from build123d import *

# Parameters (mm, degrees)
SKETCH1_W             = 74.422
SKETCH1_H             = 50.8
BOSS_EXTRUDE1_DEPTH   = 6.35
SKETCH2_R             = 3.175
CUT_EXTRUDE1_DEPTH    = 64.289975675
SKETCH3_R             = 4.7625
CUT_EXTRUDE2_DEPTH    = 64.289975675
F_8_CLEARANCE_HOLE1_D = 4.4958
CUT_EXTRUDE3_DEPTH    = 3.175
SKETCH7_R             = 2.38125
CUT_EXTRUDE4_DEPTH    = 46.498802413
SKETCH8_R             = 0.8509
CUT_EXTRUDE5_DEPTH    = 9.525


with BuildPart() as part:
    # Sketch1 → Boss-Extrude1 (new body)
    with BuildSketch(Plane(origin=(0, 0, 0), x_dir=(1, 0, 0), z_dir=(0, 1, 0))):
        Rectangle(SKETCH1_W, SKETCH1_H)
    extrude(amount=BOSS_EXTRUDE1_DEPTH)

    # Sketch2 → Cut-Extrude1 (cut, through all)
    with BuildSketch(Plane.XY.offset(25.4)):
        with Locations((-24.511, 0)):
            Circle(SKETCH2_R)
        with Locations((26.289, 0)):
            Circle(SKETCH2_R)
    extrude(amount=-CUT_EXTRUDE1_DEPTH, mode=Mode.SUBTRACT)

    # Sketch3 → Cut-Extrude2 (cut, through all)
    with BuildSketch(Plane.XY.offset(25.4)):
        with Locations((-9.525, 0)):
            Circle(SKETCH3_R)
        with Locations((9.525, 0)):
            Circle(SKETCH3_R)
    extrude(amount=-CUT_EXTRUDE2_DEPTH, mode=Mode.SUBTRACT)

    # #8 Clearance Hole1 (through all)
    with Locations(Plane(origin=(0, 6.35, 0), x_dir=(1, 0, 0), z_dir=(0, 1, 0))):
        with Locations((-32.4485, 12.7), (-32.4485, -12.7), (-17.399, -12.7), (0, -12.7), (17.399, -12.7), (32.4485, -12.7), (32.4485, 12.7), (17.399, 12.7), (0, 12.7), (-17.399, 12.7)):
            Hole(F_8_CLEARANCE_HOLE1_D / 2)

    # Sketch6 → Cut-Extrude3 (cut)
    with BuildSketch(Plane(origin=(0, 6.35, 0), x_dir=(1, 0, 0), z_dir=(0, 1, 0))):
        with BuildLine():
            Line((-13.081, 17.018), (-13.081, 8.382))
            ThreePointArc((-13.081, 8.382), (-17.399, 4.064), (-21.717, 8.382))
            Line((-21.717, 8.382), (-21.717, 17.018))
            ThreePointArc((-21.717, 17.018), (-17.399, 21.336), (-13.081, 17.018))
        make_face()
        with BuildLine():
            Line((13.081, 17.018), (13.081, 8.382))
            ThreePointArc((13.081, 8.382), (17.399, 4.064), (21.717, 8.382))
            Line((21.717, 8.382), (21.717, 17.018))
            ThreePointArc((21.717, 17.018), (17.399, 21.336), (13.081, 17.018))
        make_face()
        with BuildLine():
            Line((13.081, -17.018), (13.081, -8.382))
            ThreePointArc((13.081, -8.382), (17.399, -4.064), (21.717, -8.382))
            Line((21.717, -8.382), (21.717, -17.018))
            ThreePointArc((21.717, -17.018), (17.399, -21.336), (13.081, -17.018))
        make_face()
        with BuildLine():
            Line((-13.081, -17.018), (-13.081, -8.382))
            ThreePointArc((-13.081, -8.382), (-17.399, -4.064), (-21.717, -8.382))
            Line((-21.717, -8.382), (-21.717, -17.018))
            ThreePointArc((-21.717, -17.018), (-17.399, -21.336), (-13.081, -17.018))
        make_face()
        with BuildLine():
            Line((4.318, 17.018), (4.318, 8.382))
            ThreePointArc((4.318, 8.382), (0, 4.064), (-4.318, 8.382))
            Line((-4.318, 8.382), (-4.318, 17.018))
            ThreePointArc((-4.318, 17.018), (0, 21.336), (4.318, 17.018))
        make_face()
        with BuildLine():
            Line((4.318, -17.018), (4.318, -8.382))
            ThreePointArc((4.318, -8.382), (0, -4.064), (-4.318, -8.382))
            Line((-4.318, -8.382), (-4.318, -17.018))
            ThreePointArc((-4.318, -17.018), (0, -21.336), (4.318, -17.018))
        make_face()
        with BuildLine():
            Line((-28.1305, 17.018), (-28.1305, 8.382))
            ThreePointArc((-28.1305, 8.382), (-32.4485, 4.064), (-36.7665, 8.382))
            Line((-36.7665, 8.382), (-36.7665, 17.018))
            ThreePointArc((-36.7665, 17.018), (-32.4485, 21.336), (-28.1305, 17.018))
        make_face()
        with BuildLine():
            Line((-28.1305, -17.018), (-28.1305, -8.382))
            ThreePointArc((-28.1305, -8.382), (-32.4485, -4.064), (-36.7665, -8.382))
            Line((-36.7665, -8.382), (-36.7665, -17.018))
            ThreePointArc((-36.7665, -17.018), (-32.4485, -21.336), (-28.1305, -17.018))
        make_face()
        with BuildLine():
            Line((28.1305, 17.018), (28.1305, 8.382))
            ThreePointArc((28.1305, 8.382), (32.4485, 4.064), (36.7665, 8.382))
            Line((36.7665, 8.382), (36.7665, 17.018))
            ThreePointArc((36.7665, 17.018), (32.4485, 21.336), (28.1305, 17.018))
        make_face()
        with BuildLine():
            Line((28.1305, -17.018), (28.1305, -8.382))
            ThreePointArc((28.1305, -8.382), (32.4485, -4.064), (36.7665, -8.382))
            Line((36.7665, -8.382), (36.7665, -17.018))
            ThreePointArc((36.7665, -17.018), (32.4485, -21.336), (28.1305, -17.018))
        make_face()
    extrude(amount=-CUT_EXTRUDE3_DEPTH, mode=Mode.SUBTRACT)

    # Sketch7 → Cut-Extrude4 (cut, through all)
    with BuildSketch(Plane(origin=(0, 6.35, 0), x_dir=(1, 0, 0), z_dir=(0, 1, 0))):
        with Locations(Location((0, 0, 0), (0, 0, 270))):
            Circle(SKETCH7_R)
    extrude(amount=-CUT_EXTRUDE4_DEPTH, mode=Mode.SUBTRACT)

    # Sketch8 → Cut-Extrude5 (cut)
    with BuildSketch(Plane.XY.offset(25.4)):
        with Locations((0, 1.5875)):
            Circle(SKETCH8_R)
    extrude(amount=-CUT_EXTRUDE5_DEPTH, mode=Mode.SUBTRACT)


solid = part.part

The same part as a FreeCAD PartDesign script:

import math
import FreeCAD as App
import Part
import Sketcher
from FreeCAD import Vector
Q = App.Units.Quantity

doc = App.newDocument("Part")
params = doc.addObject("Spreadsheet::Sheet", "Params")
for row, (alias, value) in enumerate([
    ("sketch1_height", "2 in"),
    ("sketch1_width", "2.93 in"),
    ("pad1_length", "0.25 in"),
    ("sketch2_diameter", "0.25 in"),
    ("sketch3_diameter", "0.375 in"),
    ("sketch4_diameter", "0.177 in"),
    ("hole_diameter", "0.177 in"),
    ("sketch5_radius", "0.17 in"),
    ("sketch5_height", "0.34 in"),
    ("pocket3_length", "0.125 in"),
    ("sketch6_diameter", "0.1875 in"),
    ("sketch7_diameter", "0.067 in"),
    ("pocket5_length", "0.375 in"),
], start=1):
    params.set(f"A{row}", alias)
    params.set(f"B{row}", "=" + value)
    params.setAlias(f"B{row}", alias)

body = doc.addObject("PartDesign::Body", "Body")

# Sketch on XZ plane
sketch1 = body.newObject("Sketcher::SketchObject", "Sketch")
sketch1.AttachmentSupport = (doc.getObject("XZ_Plane"), [""])
sketch1.MapMode = "FlatFace"
sketch1.addGeometry([
    Part.LineSegment(Vector(-37.211, -25.4, 0), Vector(-37.211, 25.4, 0)),
    Part.LineSegment(Vector(-37.211, 25.4, 0), Vector(37.211, 25.4, 0)),
    Part.LineSegment(Vector(37.211, 25.4, 0), Vector(37.211, -25.4, 0)),
    Part.LineSegment(Vector(37.211, -25.4, 0), Vector(-37.211, -25.4, 0)),
], False)
sketch1.addConstraint([
    Sketcher.Constraint("Coincident", 0, 2, 1, 1),
    Sketcher.Constraint("Coincident", 1, 2, 2, 1),
    Sketcher.Constraint("Coincident", 2, 2, 3, 1),
    Sketcher.Constraint("Coincident", 3, 2, 0, 1),
    Sketcher.Constraint("Vertical", 0),
    Sketcher.Constraint("Horizontal", 1),
    Sketcher.Constraint("Vertical", 2),
    Sketcher.Constraint("Horizontal", 3),
    Sketcher.Constraint("Symmetric", 0, 2, 2, 2, -1, 1),
    Sketcher.Constraint("DistanceY", 0, 1, 0, 2, Q("2 in")),
    Sketcher.Constraint("DistanceX", 1, 1, 1, 2, Q("2.93 in")),
])
sketch1.setExpression("Constraints[9]", "Params.sketch1_height")
sketch1.setExpression("Constraints[10]", "Params.sketch1_width")
pad1 = body.newObject("PartDesign::Pad", "Pad")
pad1.Profile = sketch1
pad1.setExpression("Length", "Params.pad1_length")
pad1.Reversed = True

# Sketch on XY plane
sketch2 = body.newObject("Sketcher::SketchObject", "Sketch001")
sketch2.AttachmentSupport = (doc.getObject("XY_Plane"), [""])
sketch2.MapMode = "FlatFace"
sketch2.AttachmentOffset = App.Placement(Vector(0, 0, 1 * 25.4), App.Rotation())
sketch2.addGeometry([
    Part.Circle(Vector(-24.511, 0, 0), Vector(0, 0, 1), 3.175),
    Part.Circle(Vector(26.289, 0, 0), Vector(0, 0, 1), 3.175),
], False)
sketch2.addConstraint([
    Sketcher.Constraint("Equal", 0, 1),
    Sketcher.Constraint("PointOnObject", 0, 3, -1),
    Sketcher.Constraint("PointOnObject", 1, 3, -1),
    Sketcher.Constraint("Diameter", 0, Q("0.25 in")),
    Sketcher.Constraint("DistanceX", 0, 3, 1, 3, Q("2 in")),
    Sketcher.Constraint("DistanceX", 0, 3, -1, 1, Q("0.965 in")),
])
sketch2.setExpression("Constraints[3]", "Params.sketch2_diameter")
pocket1 = body.newObject("PartDesign::Pocket", "Pocket")
pocket1.Profile = sketch2
pocket1.Type = "ThroughAll"

# Sketch on XY plane
sketch3 = body.newObject("Sketcher::SketchObject", "Sketch002")
sketch3.AttachmentSupport = (doc.getObject("XY_Plane"), [""])
sketch3.MapMode = "FlatFace"
sketch3.AttachmentOffset = App.Placement(Vector(0, 0, 1 * 25.4), App.Rotation())
sketch3.addGeometry([
    Part.Circle(Vector(-9.525, 0, 0), Vector(0, 0, 1), 4.7625),
    Part.Circle(Vector(9.525, 0, 0), Vector(0, 0, 1), 4.7625),
], False)
sketch3.addConstraint([
    Sketcher.Constraint("Equal", 0, 1),
    Sketcher.Constraint("Symmetric", 0, 3, 1, 3, -1, 1),
    Sketcher.Constraint("PointOnObject", 0, 3, -1),
    Sketcher.Constraint("Diameter", 0, Q("0.375 in")),
    Sketcher.Constraint("DistanceX", 0, 3, 1, 3, Q("0.75 in")),
])
sketch3.setExpression("Constraints[3]", "Params.sketch3_diameter")
pocket2 = body.newObject("PartDesign::Pocket", "Pocket001")
pocket2.Profile = sketch3
pocket2.Type = "ThroughAll"

# Sketch on XZ plane
sketch4 = body.newObject("Sketcher::SketchObject", "Sketch003")
sketch4.AttachmentSupport = (doc.getObject("XZ_Plane"), [""])
sketch4.MapMode = "FlatFace"
sketch4.AttachmentOffset = App.Placement(Vector(0, 0, -0.25 * 25.4), App.Rotation())
sketch4.addGeometry([
    Part.Circle(Vector(-32.4485, -12.7, 0), Vector(0, 0, 1), 2.2479),  # 0
    Part.Circle(Vector(-32.4485, 12.7, 0), Vector(0, 0, 1), 2.2479),  # 1
    Part.Circle(Vector(-17.399, 12.7, 0), Vector(0, 0, 1), 2.2479),  # 2
    Part.Circle(Vector(0, 12.7, 0), Vector(0, 0, 1), 2.2479),  # 3
    Part.Circle(Vector(17.399, 12.7, 0), Vector(0, 0, 1), 2.2479),  # 4
    Part.Circle(Vector(32.4485, 12.7, 0), Vector(0, 0, 1), 2.2479),  # 5
    Part.Circle(Vector(32.4485, -12.7, 0), Vector(0, 0, 1), 2.2479),  # 6
    Part.Circle(Vector(17.399, -12.7, 0), Vector(0, 0, 1), 2.2479),  # 7
    Part.Circle(Vector(0, -12.7, 0), Vector(0, 0, 1), 2.2479),  # 8
    Part.Circle(Vector(-17.399, -12.7, 0), Vector(0, 0, 1), 2.2479),  # 9
], False)
sketch4.addConstraint([
    Sketcher.Constraint("Equal", 0, 1),
    Sketcher.Constraint("Equal", 1, 2),
    Sketcher.Constraint("Equal", 2, 3),
    Sketcher.Constraint("Equal", 3, 4),
    Sketcher.Constraint("Equal", 4, 5),
    Sketcher.Constraint("Equal", 5, 6),
    Sketcher.Constraint("Equal", 6, 7),
    Sketcher.Constraint("Equal", 7, 8),
    Sketcher.Constraint("Equal", 8, 9),
    Sketcher.Constraint("Symmetric", 0, 3, 5, 3, -1, 1),
    Sketcher.Constraint("Symmetric", 1, 3, 6, 3, -1, 1),
    Sketcher.Constraint("Symmetric", 2, 3, 7, 3, -1, 1),
    Sketcher.Constraint("Symmetric", 3, 3, 8, 3, -1, 1),
    Sketcher.Constraint("Symmetric", 4, 3, 9, 3, -1, 1),
    Sketcher.Constraint("Symmetric", 2, 3, 4, 3, -2),
    Sketcher.Constraint("Symmetric", 1, 3, 5, 3, -2),
    Sketcher.Constraint("PointOnObject", 3, 3, -2),
    Sketcher.Constraint("Horizontal", 1, 3, 2, 3),
    Sketcher.Constraint("Horizontal", 2, 3, 3, 3),
    Sketcher.Constraint("Diameter", 0, Q("0.177 in")),
    Sketcher.Constraint("DistanceY", 0, 3, 1, 3, Q("1 in")),
    Sketcher.Constraint("DistanceX", 2, 3, 4, 3, Q("1.37 in")),
    Sketcher.Constraint("DistanceX", 1, 3, 5, 3, Q("2.555 in")),
])
sketch4.setExpression("Constraints[19]", "Params.sketch4_diameter")
doc.recompute()
hole = body.newObject("PartDesign::Hole", "Hole")
hole.Profile = sketch4
hole.ThreadType = "None"
hole.setExpression("Diameter", "Params.hole_diameter")
hole.DepthType = "ThroughAll"
hole.Reversed = True

# Sketch on XZ plane
sketch5 = body.newObject("Sketcher::SketchObject", "Sketch004")
sketch5.AttachmentSupport = (doc.getObject("XZ_Plane"), [""])
sketch5.MapMode = "FlatFace"
sketch5.AttachmentOffset = App.Placement(Vector(0, 0, -0.25 * 25.4), App.Rotation())
sketch5.addGeometry([
    Part.LineSegment(Vector(-13.081, -8.382, 0), Vector(-13.081, -17.018, 0)),  # 0
    Part.ArcOfCircle(Part.Circle(Vector(-17.399, -17.018, 0), Vector(0, 0, 1), 4.318), math.radians(180), math.radians(360)),  # 1
    Part.LineSegment(Vector(-21.717, -17.018, 0), Vector(-21.717, -8.382, 0)),  # 2
    Part.ArcOfCircle(Part.Circle(Vector(-17.399, -8.382, 0), Vector(0, 0, 1), 4.318), math.radians(0), math.radians(180)),  # 3
    Part.LineSegment(Vector(13.081, -17.018, 0), Vector(13.081, -8.382, 0)),  # 4
    Part.ArcOfCircle(Part.Circle(Vector(17.399, -8.382, 0), Vector(0, 0, 1), 4.318), math.radians(0), math.radians(180)),  # 5
    Part.LineSegment(Vector(21.717, -8.382, 0), Vector(21.717, -17.018, 0)),  # 6
    Part.ArcOfCircle(Part.Circle(Vector(17.399, -17.018, 0), Vector(0, 0, 1), 4.318), math.radians(180), math.radians(360)),  # 7
    Part.LineSegment(Vector(13.081, 8.382, 0), Vector(13.081, 17.018, 0)),  # 8
    Part.ArcOfCircle(Part.Circle(Vector(17.399, 17.018, 0), Vector(0, 0, 1), 4.318), math.radians(0), math.radians(180)),  # 9
    Part.LineSegment(Vector(21.717, 17.018, 0), Vector(21.717, 8.382, 0)),  # 10
    Part.ArcOfCircle(Part.Circle(Vector(17.399, 8.382, 0), Vector(0, 0, 1), 4.318), math.radians(180), math.radians(360)),  # 11
    Part.LineSegment(Vector(-13.081, 17.018, 0), Vector(-13.081, 8.382, 0)),  # 12
    Part.ArcOfCircle(Part.Circle(Vector(-17.399, 8.382, 0), Vector(0, 0, 1), 4.318), math.radians(180), math.radians(360)),  # 13
    Part.LineSegment(Vector(-21.717, 8.382, 0), Vector(-21.717, 17.018, 0)),  # 14
    Part.ArcOfCircle(Part.Circle(Vector(-17.399, 17.018, 0), Vector(0, 0, 1), 4.318), math.radians(0), math.radians(180)),  # 15
    Part.LineSegment(Vector(4.318, -8.382, 0), Vector(4.318, -17.018, 0)),  # 16
    Part.ArcOfCircle(Part.Circle(Vector(0, -17.018, 0), Vector(0, 0, 1), 4.318), math.radians(180), math.radians(360)),  # 17
    Part.LineSegment(Vector(-4.318, -17.018, 0), Vector(-4.318, -8.382, 0)),  # 18
    Part.ArcOfCircle(Part.Circle(Vector(0, -8.382, 0), Vector(0, 0, 1), 4.318), math.radians(0), math.radians(180)),  # 19
    Part.LineSegment(Vector(4.318, 17.018, 0), Vector(4.318, 8.382, 0)),  # 20
    Part.ArcOfCircle(Part.Circle(Vector(0, 8.382, 0), Vector(0, 0, 1), 4.318), math.radians(180), math.radians(360)),  # 21
    Part.LineSegment(Vector(-4.318, 8.382, 0), Vector(-4.318, 17.018, 0)),  # 22
    Part.ArcOfCircle(Part.Circle(Vector(0, 17.018, 0), Vector(0, 0, 1), 4.318), math.radians(0), math.radians(180)),  # 23
    Part.LineSegment(Vector(-28.1305, -8.382, 0), Vector(-28.1305, -17.018, 0)),  # 24
    Part.ArcOfCircle(Part.Circle(Vector(-32.4485, -17.018, 0), Vector(0, 0, 1), 4.318), math.radians(180), math.radians(360)),  # 25
    Part.LineSegment(Vector(-36.7665, -17.018, 0), Vector(-36.7665, -8.382, 0)),  # 26
    Part.ArcOfCircle(Part.Circle(Vector(-32.4485, -8.382, 0), Vector(0, 0, 1), 4.318), math.radians(0), math.radians(180)),  # 27
    Part.LineSegment(Vector(-28.1305, 17.018, 0), Vector(-28.1305, 8.382, 0)),  # 28
    Part.ArcOfCircle(Part.Circle(Vector(-32.4485, 8.382, 0), Vector(0, 0, 1), 4.318), math.radians(180), math.radians(360)),  # 29
    Part.LineSegment(Vector(-36.7665, 8.382, 0), Vector(-36.7665, 17.018, 0)),  # 30
    Part.ArcOfCircle(Part.Circle(Vector(-32.4485, 17.018, 0), Vector(0, 0, 1), 4.318), math.radians(0), math.radians(180)),  # 31
    Part.LineSegment(Vector(28.1305, -17.018, 0), Vector(28.1305, -8.382, 0)),  # 32
    Part.ArcOfCircle(Part.Circle(Vector(32.4485, -8.382, 0), Vector(0, 0, 1), 4.318), math.radians(0), math.radians(180)),  # 33
    Part.LineSegment(Vector(36.7665, -8.382, 0), Vector(36.7665, -17.018, 0)),  # 34
    Part.ArcOfCircle(Part.Circle(Vector(32.4485, -17.018, 0), Vector(0, 0, 1), 4.318), math.radians(180), math.radians(360)),  # 35
    Part.LineSegment(Vector(28.1305, 8.382, 0), Vector(28.1305, 17.018, 0)),  # 36
    Part.ArcOfCircle(Part.Circle(Vector(32.4485, 17.018, 0), Vector(0, 0, 1), 4.318), math.radians(0), math.radians(180)),  # 37
    Part.LineSegment(Vector(36.7665, 17.018, 0), Vector(36.7665, 8.382, 0)),  # 38
    Part.ArcOfCircle(Part.Circle(Vector(32.4485, 8.382, 0), Vector(0, 0, 1), 4.318), math.radians(180), math.radians(360)),  # 39
], False)
sketch5.addConstraint([
    Sketcher.Constraint("Tangent", 0, 2, 1, 2),
    Sketcher.Constraint("Tangent", 1, 1, 2, 1),
    Sketcher.Constraint("Tangent", 2, 2, 3, 2),
    Sketcher.Constraint("Tangent", 3, 1, 0, 1),
    Sketcher.Constraint("Tangent", 4, 2, 5, 2),
    Sketcher.Constraint("Tangent", 5, 1, 6, 1),
    Sketcher.Constraint("Tangent", 6, 2, 7, 2),
    Sketcher.Constraint("Tangent", 7, 1, 4, 1),
    Sketcher.Constraint("Tangent", 8, 2, 9, 2),
    Sketcher.Constraint("Tangent", 9, 1, 10, 1),
    Sketcher.Constraint("Tangent", 10, 2, 11, 2),
    Sketcher.Constraint("Tangent", 11, 1, 8, 1),
    Sketcher.Constraint("Tangent", 12, 2, 13, 2),
    Sketcher.Constraint("Tangent", 13, 1, 14, 1),
    Sketcher.Constraint("Tangent", 14, 2, 15, 2),
    Sketcher.Constraint("Tangent", 15, 1, 12, 1),
    Sketcher.Constraint("Tangent", 16, 2, 17, 2),
    Sketcher.Constraint("Tangent", 17, 1, 18, 1),
    Sketcher.Constraint("Tangent", 18, 2, 19, 2),
    Sketcher.Constraint("Tangent", 19, 1, 16, 1),
    Sketcher.Constraint("Tangent", 20, 2, 21, 2),
    Sketcher.Constraint("Tangent", 21, 1, 22, 1),
    Sketcher.Constraint("Tangent", 22, 2, 23, 2),
    Sketcher.Constraint("Tangent", 23, 1, 20, 1),
    Sketcher.Constraint("Tangent", 24, 2, 25, 2),
    Sketcher.Constraint("Tangent", 25, 1, 26, 1),
    Sketcher.Constraint("Tangent", 26, 2, 27, 2),
    Sketcher.Constraint("Tangent", 27, 1, 24, 1),
    Sketcher.Constraint("Tangent", 28, 2, 29, 2),
    Sketcher.Constraint("Tangent", 29, 1, 30, 1),
    Sketcher.Constraint("Tangent", 30, 2, 31, 2),
    Sketcher.Constraint("Tangent", 31, 1, 28, 1),
    Sketcher.Constraint("Tangent", 32, 2, 33, 2),
    Sketcher.Constraint("Tangent", 33, 1, 34, 1),
    Sketcher.Constraint("Tangent", 34, 2, 35, 2),
    Sketcher.Constraint("Tangent", 35, 1, 32, 1),
    Sketcher.Constraint("Tangent", 36, 2, 37, 2),
    Sketcher.Constraint("Tangent", 37, 1, 38, 1),
    Sketcher.Constraint("Tangent", 38, 2, 39, 2),
    Sketcher.Constraint("Tangent", 39, 1, 36, 1),
    Sketcher.Constraint("Vertical", 0),
    Sketcher.Constraint("Vertical", 2),
    Sketcher.Constraint("Vertical", 4),
    Sketcher.Constraint("Vertical", 6),
    Sketcher.Constraint("Vertical", 8),
    Sketcher.Constraint("Vertical", 10),
    Sketcher.Constraint("Vertical", 12),
    Sketcher.Constraint("Vertical", 14),
    Sketcher.Constraint("Vertical", 16),
    Sketcher.Constraint("Vertical", 18),
    Sketcher.Constraint("Vertical", 20),
    Sketcher.Constraint("Vertical", 22),
    Sketcher.Constraint("Vertical", 24),
    Sketcher.Constraint("Vertical", 26),
    Sketcher.Constraint("Vertical", 28),
    Sketcher.Constraint("Vertical", 30),
    Sketcher.Constraint("Vertical", 32),
    Sketcher.Constraint("Vertical", 34),
    Sketcher.Constraint("Vertical", 36),
    Sketcher.Constraint("Vertical", 38),
    Sketcher.Constraint("Equal", 3, 5),
    Sketcher.Constraint("Equal", 7, 9),
    Sketcher.Constraint("Equal", 11, 13),
    Sketcher.Constraint("Equal", 15, 17),
    Sketcher.Constraint("Equal", 19, 21),
    Sketcher.Constraint("Equal", 23, 25),
    Sketcher.Constraint("Equal", 27, 29),
    Sketcher.Constraint("Equal", 31, 33),
    Sketcher.Constraint("Equal", 35, 37),
    Sketcher.Constraint("Symmetric", 1, 3, 9, 3, -1, 1),
    Sketcher.Constraint("Symmetric", 5, 3, 13, 3, -1, 1),
    Sketcher.Constraint("Symmetric", 19, 3, 21, 3, -1, 1),
    Sketcher.Constraint("Symmetric", 29, 3, 33, 3, -1, 1),
    Sketcher.Constraint("Symmetric", 25, 3, 37, 3, -1, 1),
    Sketcher.Constraint("Symmetric", 3, 3, 5, 3, -2),
    Sketcher.Constraint("Symmetric", 27, 3, 33, 3, -2),
    Sketcher.Constraint("Symmetric", 17, 3, 23, 3, -1),
    Sketcher.Constraint("Horizontal", 1, 3, 7, 3),
    Sketcher.Constraint("Horizontal", 11, 3, 13, 3),
    Sketcher.Constraint("Horizontal", 9, 3, 15, 3),
    Sketcher.Constraint("Horizontal", 7, 3, 17, 3),
    Sketcher.Constraint("Horizontal", 5, 3, 19, 3),
    Sketcher.Constraint("Horizontal", 17, 3, 25, 3),
    Sketcher.Constraint("Horizontal", 19, 3, 27, 3),
    Sketcher.Constraint("Horizontal", 23, 3, 31, 3),
    Sketcher.Constraint("Horizontal", 25, 3, 35, 3),
    Sketcher.Constraint("Horizontal", 29, 3, 39, 3),
    Sketcher.Constraint("Radius", 1, Q("0.17 in")),
    Sketcher.Constraint("DistanceY", 5, 3, 9, 3, Q("1 in")),
    Sketcher.Constraint("DistanceY", 0, 2, 0, 1, Q("0.34 in")),
    Sketcher.Constraint("DistanceX", 3, 3, 5, 3, Q("1.37 in")),
    Sketcher.Constraint("DistanceX", 25, 3, -1, 1, Q("1.2775 in")),
])
sketch5.setExpression("Constraints[87]", "Params.sketch5_radius")
sketch5.setExpression("Constraints[89]", "Params.sketch5_height")
pocket3 = body.newObject("PartDesign::Pocket", "Pocket002")
pocket3.Profile = sketch5
pocket3.setExpression("Length", "Params.pocket3_length")
pocket3.Reversed = True

# Sketch on XZ plane
sketch6 = body.newObject("Sketcher::SketchObject", "Sketch005")
sketch6.AttachmentSupport = (doc.getObject("XZ_Plane"), [""])
sketch6.MapMode = "FlatFace"
sketch6.AttachmentOffset = App.Placement(Vector(0, 0, -0.25 * 25.4), App.Rotation())
sketch6.addGeometry(Part.Circle(Vector(0, 0, 0), Vector(0, 0, 1), 2.38125), False)
sketch6.addConstraint([
    Sketcher.Constraint("Coincident", 0, 3, -1, 1),
    Sketcher.Constraint("Diameter", 0, Q("0.1875 in")),
])
sketch6.setExpression("Constraints[1]", "Params.sketch6_diameter")
pocket4 = body.newObject("PartDesign::Pocket", "Pocket003")
pocket4.Profile = sketch6
pocket4.Type = "ThroughAll"
pocket4.Reversed = True

# Sketch on XY plane
sketch7 = body.newObject("Sketcher::SketchObject", "Sketch006")
sketch7.AttachmentSupport = (doc.getObject("XY_Plane"), [""])
sketch7.MapMode = "FlatFace"
sketch7.AttachmentOffset = App.Placement(Vector(0, 0, 1 * 25.4), App.Rotation())
sketch7.addGeometry(Part.Circle(Vector(0, 1.5875, 0), Vector(0, 0, 1), 0.8509), False)
sketch7.addConstraint([
    Sketcher.Constraint("PointOnObject", 0, 3, -2),
    Sketcher.Constraint("Diameter", 0, Q("0.067 in")),
    Sketcher.Constraint("DistanceY", -1, 1, 0, 3, Q("0.0625 in")),
])
sketch7.setExpression("Constraints[1]", "Params.sketch7_diameter")
pocket5 = body.newObject("PartDesign::Pocket", "Pocket004")
pocket5.Profile = sketch7
pocket5.setExpression("Length", "Params.pocket5_length")

doc.recompute()
